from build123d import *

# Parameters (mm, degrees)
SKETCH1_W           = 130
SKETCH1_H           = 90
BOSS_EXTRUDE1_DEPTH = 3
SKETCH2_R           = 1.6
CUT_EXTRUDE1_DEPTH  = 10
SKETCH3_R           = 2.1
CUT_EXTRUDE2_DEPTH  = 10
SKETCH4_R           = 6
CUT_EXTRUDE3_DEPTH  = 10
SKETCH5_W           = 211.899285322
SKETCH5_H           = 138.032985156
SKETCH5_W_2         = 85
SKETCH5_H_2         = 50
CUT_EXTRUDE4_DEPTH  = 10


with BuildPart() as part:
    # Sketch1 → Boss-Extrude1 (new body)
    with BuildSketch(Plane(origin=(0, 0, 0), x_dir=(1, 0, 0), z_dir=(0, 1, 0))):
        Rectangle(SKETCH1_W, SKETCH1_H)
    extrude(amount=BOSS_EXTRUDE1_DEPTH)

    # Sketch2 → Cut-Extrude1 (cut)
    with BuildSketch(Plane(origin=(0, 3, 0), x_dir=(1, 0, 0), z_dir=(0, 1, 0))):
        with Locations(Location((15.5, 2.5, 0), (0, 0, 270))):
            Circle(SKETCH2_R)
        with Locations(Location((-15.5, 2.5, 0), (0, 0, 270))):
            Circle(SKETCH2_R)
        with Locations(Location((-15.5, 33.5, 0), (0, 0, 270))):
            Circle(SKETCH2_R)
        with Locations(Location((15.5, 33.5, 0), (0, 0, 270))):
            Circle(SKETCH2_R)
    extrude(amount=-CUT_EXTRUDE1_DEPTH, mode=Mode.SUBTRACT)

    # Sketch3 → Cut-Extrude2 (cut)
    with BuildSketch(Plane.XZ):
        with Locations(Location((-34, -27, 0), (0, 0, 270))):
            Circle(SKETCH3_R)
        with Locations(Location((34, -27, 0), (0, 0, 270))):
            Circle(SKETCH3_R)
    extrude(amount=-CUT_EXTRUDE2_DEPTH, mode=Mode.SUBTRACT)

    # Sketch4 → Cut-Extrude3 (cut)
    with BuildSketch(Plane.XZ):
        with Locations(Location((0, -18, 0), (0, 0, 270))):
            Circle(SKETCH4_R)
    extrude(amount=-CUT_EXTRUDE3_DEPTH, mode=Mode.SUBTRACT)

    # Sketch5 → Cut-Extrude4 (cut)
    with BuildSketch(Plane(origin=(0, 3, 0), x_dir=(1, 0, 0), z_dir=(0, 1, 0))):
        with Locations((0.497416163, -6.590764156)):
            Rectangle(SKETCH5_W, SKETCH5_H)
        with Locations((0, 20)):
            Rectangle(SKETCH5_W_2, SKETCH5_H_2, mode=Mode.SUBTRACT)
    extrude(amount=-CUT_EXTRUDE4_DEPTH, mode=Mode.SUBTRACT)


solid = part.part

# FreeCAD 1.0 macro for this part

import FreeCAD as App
import Part
import Sketcher
from FreeCAD import Vector


def add_polygon(sketch, points):
    """Adds a closed chain of lines whose ends are joined by coincident constraints."""
    first, n = sketch.GeometryCount, len(points)
    for a, b in zip(points, points[1:] + points[:1]):
        sketch.addGeometry(Part.LineSegment(App.Vector(*a, 0), App.Vector(*b, 0)), False)
    for i in range(n):
        sketch.addConstraint(Sketcher.Constraint("Coincident", first + i, 2, first + (i + 1) % n, 1))

doc = App.newDocument("Part")
params = doc.addObject("Spreadsheet::Sheet", "Params")
for row, (alias, value) in enumerate([
    ("sketch1_width", "130 mm"),
    ("sketch1_height", "90 mm"),
    ("pad1_length", "3 mm"),
    ("sketch2_diameter", "3.2 mm"),
    ("pocket1_length", "10 mm"),
    ("sketch3_diameter", "4.2 mm"),
    ("pocket2_length", "10 mm"),
    ("sketch4_diameter", "12 mm"),
    ("pocket3_length", "10 mm"),
    ("sketch5_width", "85 mm"),
    ("sketch5_height", "50 mm"),
    ("pocket4_length", "10 mm"),
], start=1):
    params.set(f"A{row}", alias)
    params.set(f"B{row}", "=" + value)
    params.setAlias(f"B{row}", alias)

body = doc.addObject("PartDesign::Body", "Body")

sketch1 = body.newObject("Sketcher::SketchObject", "Sketch")
sketch1.AttachmentSupport = (doc.getObject("XZ_Plane"), [""])
sketch1.MapMode = "FlatFace"
add_polygon(sketch1, [(-65, -45), (-65, 45), (65, 45), (65, -45)])
sketch1.addConstraint(Sketcher.Constraint("Vertical", 0))
sketch1.addConstraint(Sketcher.Constraint("Horizontal", 1))
sketch1.addConstraint(Sketcher.Constraint("Vertical", 2))
sketch1.addConstraint(Sketcher.Constraint("Horizontal", 3))
sketch1.addConstraint(Sketcher.Constraint("Symmetric", 0, 2, 2, 2, -1, 1))
sketch1.addConstraint(Sketcher.Constraint("DistanceX", 1, 1, 1, 2, 130.0))
sketch1.addConstraint(Sketcher.Constraint("DistanceY", 0, 1, 0, 2, 90.0))
sketch1.setExpression("Constraints[9]", "Params.sketch1_width")
sketch1.setExpression("Constraints[10]", "Params.sketch1_height")
pad1 = body.newObject("PartDesign::Pad", "Pad")
pad1.Profile = sketch1
pad1.setExpression("Length", "Params.pad1_length")
pad1.Reversed = True

sketch2 = body.newObject("Sketcher::SketchObject", "Sketch001")
sketch2.AttachmentSupport = (doc.getObject("XZ_Plane"), [""])
sketch2.MapMode = "FlatFace"
sketch2.AttachmentOffset = App.Placement(Vector(0, 0, -3), App.Rotation())
sketch2.addGeometry(Part.Circle(Vector(15.5, -2.5, 0), Vector(0, 0, 1), 1.6), False)
sketch2.addGeometry(Part.Circle(Vector(-15.5, -2.5, 0), Vector(0, 0, 1), 1.6), False)
sketch2.addGeometry(Part.Circle(Vector(-15.5, -33.5, 0), Vector(0, 0, 1), 1.6), False)
sketch2.addGeometry(Part.Circle(Vector(15.5, -33.5, 0), Vector(0, 0, 1), 1.6), False)
sketch2.addConstraint(Sketcher.Constraint("Equal", 0, 1))
sketch2.addConstraint(Sketcher.Constraint("Equal", 1, 2))
sketch2.addConstraint(Sketcher.Constraint("Equal", 2, 3))
sketch2.addConstraint(Sketcher.Constraint("Symmetric", 0, 3, 1, 3, -2))
sketch2.addConstraint(Sketcher.Constraint("Symmetric", 2, 3, 3, 3, -2))
sketch2.addConstraint(Sketcher.Constraint("Vertical", 1, 3, 2, 3))
sketch2.addConstraint(Sketcher.Constraint("Diameter", 0, 3.2))
sketch2.addConstraint(Sketcher.Constraint("DistanceX", 1, 3, 0, 3, 31.0))
sketch2.addConstraint(Sketcher.Constraint("DistanceY", 2, 3, 1, 3, 31.0))
sketch2.addConstraint(Sketcher.Constraint("DistanceY", 0, 3, -1, 1, 2.5))
sketch2.setExpression("Constraints[6]", "Params.sketch2_diameter")
pocket1 = body.newObject("PartDesign::Pocket", "Pocket")
pocket1.Profile = sketch2
pocket1.setExpression("Length", "Params.pocket1_length")
pocket1.Reversed = True

sketch3 = body.newObject("Sketcher::SketchObject", "Sketch002")
sketch3.AttachmentSupport = (doc.getObject("XZ_Plane"), [""])
sketch3.MapMode = "FlatFace"
sketch3.addGeometry(Part.Circle(Vector(-34, -27, 0), Vector(0, 0, 1), 2.1), False)
sketch3.addGeometry(Part.Circle(Vector(34, -27, 0), Vector(0, 0, 1), 2.1), False)
sketch3.addConstraint(Sketcher.Constraint("Equal", 0, 1))
sketch3.addConstraint(Sketcher.Constraint("Symmetric", 0, 3, 1, 3, -2))
sketch3.addConstraint(Sketcher.Constraint("Diameter", 0, 4.2))
sketch3.addConstraint(Sketcher.Constraint("DistanceX", 0, 3, -1, 1, 34.0))
sketch3.addConstraint(Sketcher.Constraint("DistanceY", 0, 3, -1, 1, 27.0))
sketch3.setExpression("Constraints[2]", "Params.sketch3_diameter")
pocket2 = body.newObject("PartDesign::Pocket", "Pocket001")
pocket2.Profile = sketch3
pocket2.setExpression("Length", "Params.pocket2_length")

sketch4 = body.newObject("Sketcher::SketchObject", "Sketch003")
sketch4.AttachmentSupport = (doc.getObject("XZ_Plane"), [""])
sketch4.MapMode = "FlatFace"
sketch4.addGeometry(Part.Circle(Vector(0, -18, 0), Vector(0, 0, 1), 6), False)
sketch4.addConstraint(Sketcher.Constraint("PointOnObject", 0, 3, -2))
sketch4.addConstraint(Sketcher.Constraint("Diameter", 0, 12.0))
sketch4.addConstraint(Sketcher.Constraint("DistanceY", 0, 3, -1, 1, 18.0))
sketch4.setExpression("Constraints[1]", "Params.sketch4_diameter")
pocket3 = body.newObject("PartDesign::Pocket", "Pocket002")
pocket3.Profile = sketch4
pocket3.setExpression("Length", "Params.pocket3_length")

sketch5 = body.newObject("Sketcher::SketchObject", "Sketch004")
sketch5.AttachmentSupport = (doc.getObject("XZ_Plane"), [""])
sketch5.MapMode = "FlatFace"
sketch5.AttachmentOffset = App.Placement(Vector(0, 0, -3), App.Rotation())
add_polygon(sketch5, [(-105, -62), (-105, 76), (106, 76), (106, -62)])
add_polygon(sketch5, [(42, 5), (-42, 5), (-42, -45), (42, -45)])
sketch5.addConstraint(Sketcher.Constraint("Vertical", 0))
sketch5.addConstraint(Sketcher.Constraint("Horizontal", 1))
sketch5.addConstraint(Sketcher.Constraint("Vertical", 2))
sketch5.addConstraint(Sketcher.Constraint("Horizontal", 3))
sketch5.addConstraint(Sketcher.Constraint("Horizontal", 4))
sketch5.addConstraint(Sketcher.Constraint("Vertical", 5))
sketch5.addConstraint(Sketcher.Constraint("Horizontal", 6))
sketch5.addConstraint(Sketcher.Constraint("Vertical", 7))
sketch5.addConstraint(Sketcher.Constraint("DistanceX", 4, 2, 4, 1, 85.0))
sketch5.addConstraint(Sketcher.Constraint("DistanceY", 5, 2, 5, 1, 50.0))
sketch5.addConstraint(Sketcher.Constraint("DistanceY", -1, 1, 4, 2, 5.0))
sketch5.addConstraint(Sketcher.Constraint("DistanceX", 4, 2, -1, 1, 42.5))
sketch5.addConstraint(Sketcher.Constraint("DistanceX", 1, 1, 1, 2, 211.899285))
sketch5.addConstraint(Sketcher.Constraint("DistanceY", 0, 1, 0, 2, 138.032985))
sketch5.addConstraint(Sketcher.Constraint("DistanceX", -1, 1, 1, 2, 106.447059))
sketch5.addConstraint(Sketcher.Constraint("DistanceY", 2, 2, -1, 1, 62.425728))
sketch5.setExpression("Constraints[16]", "Params.sketch5_width")
sketch5.setExpression("Constraints[17]", "Params.sketch5_height")
pocket4 = body.newObject("PartDesign::Pocket", "Pocket003")
pocket4.Profile = sketch5
pocket4.setExpression("Length", "Params.pocket4_length")
pocket4.Reversed = True

doc.recompute()
